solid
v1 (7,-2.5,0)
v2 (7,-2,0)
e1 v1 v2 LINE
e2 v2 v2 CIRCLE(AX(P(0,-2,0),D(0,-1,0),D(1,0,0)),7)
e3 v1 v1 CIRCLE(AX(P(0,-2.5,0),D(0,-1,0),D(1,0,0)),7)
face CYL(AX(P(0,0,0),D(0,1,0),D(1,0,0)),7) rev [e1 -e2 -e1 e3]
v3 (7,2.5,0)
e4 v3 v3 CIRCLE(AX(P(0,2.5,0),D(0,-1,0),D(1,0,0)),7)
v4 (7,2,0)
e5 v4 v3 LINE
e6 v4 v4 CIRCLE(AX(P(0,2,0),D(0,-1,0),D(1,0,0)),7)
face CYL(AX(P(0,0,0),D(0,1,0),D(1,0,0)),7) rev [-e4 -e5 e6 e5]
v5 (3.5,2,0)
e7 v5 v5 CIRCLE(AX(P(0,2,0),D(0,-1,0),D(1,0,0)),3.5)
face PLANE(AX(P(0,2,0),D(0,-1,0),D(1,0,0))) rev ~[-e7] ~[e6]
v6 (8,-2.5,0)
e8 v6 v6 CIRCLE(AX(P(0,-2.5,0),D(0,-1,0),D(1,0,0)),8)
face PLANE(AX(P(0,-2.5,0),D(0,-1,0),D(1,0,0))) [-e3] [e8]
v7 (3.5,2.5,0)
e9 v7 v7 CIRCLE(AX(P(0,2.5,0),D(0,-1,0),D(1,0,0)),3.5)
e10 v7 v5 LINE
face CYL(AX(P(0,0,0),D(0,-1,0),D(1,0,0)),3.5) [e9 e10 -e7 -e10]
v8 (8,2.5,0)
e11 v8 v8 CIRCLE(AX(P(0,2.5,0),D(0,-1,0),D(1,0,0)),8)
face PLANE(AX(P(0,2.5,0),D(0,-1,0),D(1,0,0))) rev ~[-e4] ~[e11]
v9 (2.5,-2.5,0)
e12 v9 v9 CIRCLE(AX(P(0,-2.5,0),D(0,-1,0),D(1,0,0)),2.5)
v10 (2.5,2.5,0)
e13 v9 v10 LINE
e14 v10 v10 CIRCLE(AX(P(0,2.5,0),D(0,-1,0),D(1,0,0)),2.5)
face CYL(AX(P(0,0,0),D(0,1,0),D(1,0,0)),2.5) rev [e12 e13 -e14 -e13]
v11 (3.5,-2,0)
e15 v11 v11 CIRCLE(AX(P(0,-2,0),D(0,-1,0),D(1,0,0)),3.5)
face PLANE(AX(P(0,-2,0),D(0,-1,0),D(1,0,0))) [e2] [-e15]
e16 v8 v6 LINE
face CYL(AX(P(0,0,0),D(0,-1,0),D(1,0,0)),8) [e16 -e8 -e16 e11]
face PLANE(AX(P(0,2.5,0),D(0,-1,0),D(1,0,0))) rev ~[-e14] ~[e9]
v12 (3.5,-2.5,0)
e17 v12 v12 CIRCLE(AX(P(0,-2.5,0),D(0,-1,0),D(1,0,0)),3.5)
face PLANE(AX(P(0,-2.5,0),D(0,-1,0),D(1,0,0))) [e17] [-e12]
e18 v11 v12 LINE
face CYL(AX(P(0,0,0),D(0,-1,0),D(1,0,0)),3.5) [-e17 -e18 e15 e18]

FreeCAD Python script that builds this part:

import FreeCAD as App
import Part
import Sketcher
Q = App.Units.Quantity

doc = App.newDocument("Part")
body = doc.addObject("PartDesign::Body", "Body")

# Sketch on XZ plane
sketch1 = body.newObject("Sketcher::SketchObject", "Sketch")
sketch1.AttachmentSupport = (doc.getObject("XZ_Plane"), [""])
sketch1.MapMode = "FlatFace"
sketch1.addGeometry(Part.Circle(App.Vector(0, 0, 0), App.Vector(0, 0, 1), 3.5), False)
sketch1.addGeometry(Part.Circle(App.Vector(0, 0, 0), App.Vector(0, 0, 1), 2.5), False)
sketch1.addConstraint(Sketcher.Constraint("Coincident", 0, 3, -1, 1))
sketch1.addConstraint(Sketcher.Constraint("Coincident", 1, 3, -1, 1))
sketch1.addConstraint(Sketcher.Constraint("Diameter", 0, Q("7 mm")))
sketch1.addConstraint(Sketcher.Constraint("Diameter", 1, Q("5 mm")))
pad1 = body.newObject("PartDesign::Pad", "Pad")
pad1.Profile = sketch1
pad1.Length = 5
pad1.Midplane = True
body2 = doc.addObject("PartDesign::Body", "Body001")

# Sketch on XZ plane
sketch2 = body2.newObject("Sketcher::SketchObject", "Sketch001")
sketch2.AttachmentSupport = (doc.getObject("XZ_Plane001"), [""])
sketch2.MapMode = "FlatFace"
sketch2.addGeometry(Part.Circle(App.Vector(0, 0, 0), App.Vector(0, 0, 1), 8), False)
sketch2.addGeometry(Part.Circle(App.Vector(0, 0, 0), App.Vector(0, 0, 1), 7), False)
sketch2.addConstraint(Sketcher.Constraint("Coincident", 0, 3, -1, 1))
sketch2.addConstraint(Sketcher.Constraint("Coincident", 1, 3, -1, 1))
sketch2.addConstraint(Sketcher.Constraint("Diameter", 0, Q("16 mm")))
sketch2.addConstraint(Sketcher.Constraint("Diameter", 1, Q("14 mm")))
pad2 = body2.newObject("PartDesign::Pad", "Pad001")
pad2.Profile = sketch2
pad2.Length = 5
pad2.Midplane = True
body.AllowCompound = True
doc.recompute()

boolean = body.newObject("PartDesign::Boolean", "Boolean")
boolean.Type = "Fuse"
boolean.addObjects([body2])

# Sketch on XZ plane
sketch3 = body.newObject("Sketcher::SketchObject", "Sketch002")
sketch3.AttachmentSupport = (doc.getObject("XZ_Plane"), [""])
sketch3.MapMode = "FlatFace"
sketch3.addGeometry(Part.Circle(App.Vector(0, 0, 0), App.Vector(0, 0, 1), 7), False)
sketch3.addGeometry(Part.Circle(App.Vector(0, 0, 0), App.Vector(0, 0, 1), 3.5), False)
sketch3.addConstraint(Sketcher.Constraint("Coincident", 0, 3, -1, 1))
sketch3.addConstraint(Sketcher.Constraint("Coincident", 1, 3, -1, 1))
sketch3.addConstraint(Sketcher.Constraint("Diameter", 0, Q("14 mm")))
sketch3.addConstraint(Sketcher.Constraint("Diameter", 1, Q("7 mm")))
pad3 = body.newObject("PartDesign::Pad", "Pad002")
pad3.Profile = sketch3
pad3.Length = 4
pad3.Midplane = True

doc.recompute()
